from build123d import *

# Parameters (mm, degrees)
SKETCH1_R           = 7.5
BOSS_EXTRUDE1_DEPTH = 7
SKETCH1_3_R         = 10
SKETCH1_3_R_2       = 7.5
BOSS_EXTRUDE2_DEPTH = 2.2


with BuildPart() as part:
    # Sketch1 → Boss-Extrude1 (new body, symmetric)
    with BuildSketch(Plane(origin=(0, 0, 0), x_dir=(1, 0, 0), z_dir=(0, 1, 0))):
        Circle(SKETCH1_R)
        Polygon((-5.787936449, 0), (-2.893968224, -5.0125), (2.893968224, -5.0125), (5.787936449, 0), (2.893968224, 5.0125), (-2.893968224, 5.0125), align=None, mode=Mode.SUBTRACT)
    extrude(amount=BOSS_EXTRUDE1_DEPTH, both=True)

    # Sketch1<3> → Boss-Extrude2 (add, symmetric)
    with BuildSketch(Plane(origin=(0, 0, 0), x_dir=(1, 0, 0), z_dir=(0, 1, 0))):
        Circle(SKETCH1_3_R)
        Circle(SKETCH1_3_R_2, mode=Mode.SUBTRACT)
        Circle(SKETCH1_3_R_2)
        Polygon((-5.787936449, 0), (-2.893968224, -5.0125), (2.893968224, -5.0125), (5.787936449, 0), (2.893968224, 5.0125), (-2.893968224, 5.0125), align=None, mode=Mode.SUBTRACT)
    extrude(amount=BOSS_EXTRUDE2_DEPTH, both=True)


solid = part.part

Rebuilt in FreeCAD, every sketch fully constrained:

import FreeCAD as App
import Part
import Sketcher
from FreeCAD import Vector
Q = App.Units.Quantity


def add_polygon(sketch, points):
    """Adds a closed chain of lines whose ends are joined by coincident constraints."""
    first, n = sketch.GeometryCount, len(points)
    for a, b in zip(points, points[1:] + points[:1]):
        sketch.addGeometry(Part.LineSegment(App.Vector(*a, 0), App.Vector(*b, 0)), False)
    for i in range(n):
        sketch.addConstraint(Sketcher.Constraint("Coincident", first + i, 2, first + (i + 1) % n, 1))

doc = App.newDocument("Part")
body = doc.addObject("PartDesign::Body", "Body")

# Sketch on XZ plane
sketch1 = doc.addObject("Sketcher::SketchObject", "Sketch")
body.addObject(sketch1)
sketch1.AttachmentSupport = (doc.XZ_Plane, [""])
sketch1.MapMode = "FlatFace"
sketch1.addGeometry(Part.Circle(Vector(0, 0, 0), Vector(0, 0, 1), 7.5), False)  # 0
add_polygon(sketch1, [(-2.893968, 5.0125), (-5.787936, 0), (-2.893968, -5.0125), (2.893968, -5.0125), (5.787936, 0), (2.893968, 5.0125)])  # lines 1-6
sketch1.addConstraint([
    Sketcher.Constraint("Horizontal", 3),
    Sketcher.Constraint("Horizontal", 6),
    Sketcher.Constraint("Coincident", 0, 3, -1, 1),
    Sketcher.Constraint("Symmetric", 1, 2, 4, 2, -1, 1),
    Sketcher.Constraint("Symmetric", 2, 2, 5, 2, -1, 1),
    Sketcher.Constraint("PointOnObject", 1, 2, -1),
    Sketcher.Constraint("Parallel", 1, 4),
    Sketcher.Constraint("Vertical", 3, 2, 5, 2),
    Sketcher.Constraint("Diameter", 0, Q("15 mm")),
    Sketcher.Constraint("Angle", 1, Q("-120 deg")),
    Sketcher.Constraint("DistanceY", 3, 2, 5, 2, Q("10.025 mm")),
    Sketcher.Constraint("DistanceX", 3, 1, 3, 2, Q("5.787936 mm")),
])
pad1 = doc.addObject("PartDesign::Pad", "Pad")
body.addObject(pad1)
pad1.Profile = sketch1
pad1.Length = 14
pad1.Midplane = True

# Sketch on XZ plane
sketch2 = doc.addObject("Sketcher::SketchObject", "Sketch001")
body.addObject(sketch2)
sketch2.AttachmentSupport = (doc.XZ_Plane, [""])
sketch2.MapMode = "FlatFace"
sketch2.addGeometry(Part.Circle(Vector(0, 0, 0), Vector(0, 0, 1), 10), False)  # 0
add_polygon(sketch2, [(-2.893968, 5.0125), (-5.787936, 0), (-2.893968, -5.0125), (2.893968, -5.0125), (5.787936, 0), (2.893968, 5.0125)])  # lines 1-6
sketch2.addConstraint([
    Sketcher.Constraint("Horizontal", 3),
    Sketcher.Constraint("Horizontal", 6),
    Sketcher.Constraint("Coincident", 0, 3, -1, 1),
    Sketcher.Constraint("Symmetric", 1, 2, 4, 2, -1, 1),
    Sketcher.Constraint("Symmetric", 2, 2, 5, 2, -1, 1),
    Sketcher.Constraint("PointOnObject", 1, 2, -1),
    Sketcher.Constraint("Parallel", 1, 4),
    Sketcher.Constraint("Vertical", 3, 2, 5, 2),
    Sketcher.Constraint("Diameter", 0, Q("20 mm")),
    Sketcher.Constraint("Angle", 1, Q("-120 deg")),
    Sketcher.Constraint("DistanceY", 3, 2, 5, 2, Q("10.025 mm")),
    Sketcher.Constraint("DistanceX", 3, 1, 3, 2, Q("5.787936 mm")),
])
pad2 = doc.addObject("PartDesign::Pad", "Pad001")
body.addObject(pad2)
pad2.Profile = sketch2
pad2.Length = 4.4
pad2.Midplane = True

doc.recompute()
